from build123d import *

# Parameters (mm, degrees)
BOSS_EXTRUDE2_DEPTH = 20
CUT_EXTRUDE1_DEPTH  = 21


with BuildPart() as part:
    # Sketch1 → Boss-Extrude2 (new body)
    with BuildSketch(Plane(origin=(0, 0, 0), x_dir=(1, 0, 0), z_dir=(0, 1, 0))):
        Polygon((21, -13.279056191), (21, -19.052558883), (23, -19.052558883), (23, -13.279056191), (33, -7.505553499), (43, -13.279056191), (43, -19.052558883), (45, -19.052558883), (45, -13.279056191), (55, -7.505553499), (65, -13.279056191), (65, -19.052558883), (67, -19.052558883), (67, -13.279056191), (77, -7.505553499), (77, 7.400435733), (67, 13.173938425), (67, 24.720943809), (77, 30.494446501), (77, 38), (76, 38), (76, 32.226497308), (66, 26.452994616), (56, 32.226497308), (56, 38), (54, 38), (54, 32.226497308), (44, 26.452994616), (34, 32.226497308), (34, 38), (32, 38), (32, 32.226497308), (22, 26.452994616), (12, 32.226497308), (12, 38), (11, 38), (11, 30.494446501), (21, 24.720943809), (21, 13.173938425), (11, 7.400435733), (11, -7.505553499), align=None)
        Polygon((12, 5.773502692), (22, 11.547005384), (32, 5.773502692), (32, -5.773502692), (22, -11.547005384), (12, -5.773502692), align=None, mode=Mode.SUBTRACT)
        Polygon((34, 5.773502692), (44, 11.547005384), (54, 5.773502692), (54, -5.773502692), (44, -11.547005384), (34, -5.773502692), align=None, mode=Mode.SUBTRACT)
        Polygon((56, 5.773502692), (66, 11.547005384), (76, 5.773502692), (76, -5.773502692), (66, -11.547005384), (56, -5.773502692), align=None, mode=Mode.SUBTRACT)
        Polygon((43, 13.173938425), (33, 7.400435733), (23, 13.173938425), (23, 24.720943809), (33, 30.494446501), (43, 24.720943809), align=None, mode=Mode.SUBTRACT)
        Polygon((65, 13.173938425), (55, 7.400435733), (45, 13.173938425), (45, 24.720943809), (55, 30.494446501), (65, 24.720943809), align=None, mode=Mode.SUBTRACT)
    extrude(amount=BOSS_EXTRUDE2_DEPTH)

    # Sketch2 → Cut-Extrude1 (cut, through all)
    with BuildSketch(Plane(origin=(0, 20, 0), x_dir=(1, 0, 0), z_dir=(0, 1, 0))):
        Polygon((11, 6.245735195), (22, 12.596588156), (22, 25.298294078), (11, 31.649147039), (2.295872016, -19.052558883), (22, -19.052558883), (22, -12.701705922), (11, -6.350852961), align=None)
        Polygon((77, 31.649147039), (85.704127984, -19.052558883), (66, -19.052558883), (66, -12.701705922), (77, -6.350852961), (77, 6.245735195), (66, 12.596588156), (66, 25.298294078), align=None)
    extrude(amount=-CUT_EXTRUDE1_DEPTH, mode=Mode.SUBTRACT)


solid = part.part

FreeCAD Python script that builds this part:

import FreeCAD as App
import Part
import Sketcher
from FreeCAD import Vector
Q = App.Units.Quantity

doc = App.newDocument("Part")
body = doc.addObject("PartDesign::Body", "Body")

sketch1 = doc.addObject("Sketcher::SketchObject", "Sketch")
body.addObject(sketch1)
sketch1.AttachmentSupport = (doc.XZ_Plane, [""])
sketch1.MapMode = "FlatFace"
sketch1.addGeometry([
    Part.LineSegment(Vector(21, 13.279056, 0), Vector(21, 19.052559, 0)),
    Part.LineSegment(Vector(21, 19.052559, 0), Vector(23, 19.052559, 0)),
    Part.LineSegment(Vector(23, 19.052559, 0), Vector(23, 13.279056, 0)),
    Part.LineSegment(Vector(23, 13.279056, 0), Vector(33, 7.505553, 0)),
    Part.LineSegment(Vector(33, 7.505553, 0), Vector(43, 13.279056, 0)),
    Part.LineSegment(Vector(43, 13.279056, 0), Vector(43, 19.052559, 0)),
    Part.LineSegment(Vector(43, 19.052559, 0), Vector(45, 19.052559, 0)),
    Part.LineSegment(Vector(45, 19.052559, 0), Vector(45, 13.279056, 0)),
    Part.LineSegment(Vector(45, 13.279056, 0), Vector(55, 7.505553, 0)),
    Part.LineSegment(Vector(55, 7.505553, 0), Vector(65, 13.279056, 0)),
    Part.LineSegment(Vector(65, 13.279056, 0), Vector(65, 19.052559, 0)),
    Part.LineSegment(Vector(65, 19.052559, 0), Vector(67, 19.052559, 0)),
    Part.LineSegment(Vector(67, 19.052559, 0), Vector(67, 13.279056, 0)),
    Part.LineSegment(Vector(67, 13.279056, 0), Vector(77, 7.505553, 0)),
    Part.LineSegment(Vector(77, 7.505553, 0), Vector(77, -7.400436, 0)),
    Part.LineSegment(Vector(77, -7.400436, 0), Vector(67, -13.173938, 0)),
    Part.LineSegment(Vector(67, -13.173938, 0), Vector(67, -24.720944, 0)),
    Part.LineSegment(Vector(67, -24.720944, 0), Vector(77, -30.494447, 0)),
    Part.LineSegment(Vector(77, -30.494447, 0), Vector(77, -38, 0)),
    Part.LineSegment(Vector(77, -38, 0), Vector(76, -38, 0)),
    Part.LineSegment(Vector(76, -38, 0), Vector(76, -32.226497, 0)),
    Part.LineSegment(Vector(76, -32.226497, 0), Vector(66, -26.452995, 0)),
    Part.LineSegment(Vector(66, -26.452995, 0), Vector(56, -32.226497, 0)),
    Part.LineSegment(Vector(56, -32.226497, 0), Vector(56, -38, 0)),
    Part.LineSegment(Vector(56, -38, 0), Vector(54, -38, 0)),
    Part.LineSegment(Vector(54, -38, 0), Vector(54, -32.226497, 0)),
    Part.LineSegment(Vector(54, -32.226497, 0), Vector(44, -26.452995, 0)),
    Part.LineSegment(Vector(44, -26.452995, 0), Vector(34, -32.226497, 0)),
    Part.LineSegment(Vector(34, -32.226497, 0), Vector(34, -38, 0)),
    Part.LineSegment(Vector(34, -38, 0), Vector(32, -38, 0)),
    Part.LineSegment(Vector(32, -38, 0), Vector(32, -32.226497, 0)),
    Part.LineSegment(Vector(32, -32.226497, 0), Vector(22, -26.452995, 0)),
    Part.LineSegment(Vector(22, -26.452995, 0), Vector(12, -32.226497, 0)),
    Part.LineSegment(Vector(12, -32.226497, 0), Vector(12, -38, 0)),
    Part.LineSegment(Vector(12, -38, 0), Vector(11, -38, 0)),
    Part.LineSegment(Vector(11, -38, 0), Vector(11, -30.494447, 0)),
    Part.LineSegment(Vector(11, -30.494447, 0), Vector(21, -24.720944, 0)),
    Part.LineSegment(Vector(21, -24.720944, 0), Vector(21, -13.173938, 0)),
    Part.LineSegment(Vector(21, -13.173938, 0), Vector(11, -7.400436, 0)),
    Part.LineSegment(Vector(11, -7.400436, 0), Vector(11, 7.505553, 0)),
    Part.LineSegment(Vector(11, 7.505553, 0), Vector(21, 13.279056, 0)),
    Part.LineSegment(Vector(12, 5.773503, 0), Vector(12, -5.773503, 0)),
    Part.LineSegment(Vector(12, -5.773503, 0), Vector(22, -11.547005, 0)),
    Part.LineSegment(Vector(22, -11.547005, 0), Vector(32, -5.773503, 0)),
    Part.LineSegment(Vector(32, -5.773503, 0), Vector(32, 5.773503, 0)),
    Part.LineSegment(Vector(32, 5.773503, 0), Vector(22, 11.547005, 0)),
    Part.LineSegment(Vector(22, 11.547005, 0), Vector(12, 5.773503, 0)),
    Part.LineSegment(Vector(34, 5.773503, 0), Vector(34, -5.773503, 0)),
    Part.LineSegment(Vector(34, -5.773503, 0), Vector(44, -11.547005, 0)),
    Part.LineSegment(Vector(44, -11.547005, 0), Vector(54, -5.773503, 0)),
    Part.LineSegment(Vector(54, -5.773503, 0), Vector(54, 5.773503, 0)),
    Part.LineSegment(Vector(54, 5.773503, 0), Vector(44, 11.547005, 0)),
    Part.LineSegment(Vector(44, 11.547005, 0), Vector(34, 5.773503, 0)),
    Part.LineSegment(Vector(56, 5.773503, 0), Vector(56, -5.773503, 0)),
    Part.LineSegment(Vector(56, -5.773503, 0), Vector(66, -11.547005, 0)),
    Part.LineSegment(Vector(66, -11.547005, 0), Vector(76, -5.773503, 0)),
    Part.LineSegment(Vector(76, -5.773503, 0), Vector(76, 5.773503, 0)),
    Part.LineSegment(Vector(76, 5.773503, 0), Vector(66, 11.547005, 0)),
    Part.LineSegment(Vector(66, 11.547005, 0), Vector(56, 5.773503, 0)),
    Part.LineSegment(Vector(43, -24.720944, 0), Vector(43, -13.173938, 0)),
    Part.LineSegment(Vector(43, -13.173938, 0), Vector(33, -7.400436, 0)),
    Part.LineSegment(Vector(33, -7.400436, 0), Vector(23, -13.173938, 0)),
    Part.LineSegment(Vector(23, -13.173938, 0), Vector(23, -24.720944, 0)),
    Part.LineSegment(Vector(23, -24.720944, 0), Vector(33, -30.494447, 0)),
    Part.LineSegment(Vector(33, -30.494447, 0), Vector(43, -24.720944, 0)),
    Part.LineSegment(Vector(65, -24.720944, 0), Vector(65, -13.173938, 0)),
    Part.LineSegment(Vector(65, -13.173938, 0), Vector(55, -7.400436, 0)),
    Part.LineSegment(Vector(55, -7.400436, 0), Vector(45, -13.173938, 0)),
    Part.LineSegment(Vector(45, -13.173938, 0), Vector(45, -24.720944, 0)),
    Part.LineSegment(Vector(45, -24.720944, 0), Vector(55, -30.494447, 0)),
    Part.LineSegment(Vector(55, -30.494447, 0), Vector(65, -24.720944, 0)),
], False)
sketch1.addConstraint([
    Sketcher.Constraint("Coincident", 0, 2, 1, 1),
    Sketcher.Constraint("Coincident", 1, 2, 2, 1),
    Sketcher.Constraint("Coincident", 2, 2, 3, 1),
    Sketcher.Constraint("Coincident", 3, 2, 4, 1),
    Sketcher.Constraint("Coincident", 4, 2, 5, 1),
    Sketcher.Constraint("Coincident", 5, 2, 6, 1),
    Sketcher.Constraint("Coincident", 6, 2, 7, 1),
    Sketcher.Constraint("Coincident", 7, 2, 8, 1),
    Sketcher.Constraint("Coincident", 8, 2, 9, 1),
    Sketcher.Constraint("Coincident", 9, 2, 10, 1),
    Sketcher.Constraint("Coincident", 10, 2, 11, 1),
    Sketcher.Constraint("Coincident", 11, 2, 12, 1),
    Sketcher.Constraint("Coincident", 12, 2, 13, 1),
    Sketcher.Constraint("Coincident", 13, 2, 14, 1),
    Sketcher.Constraint("Coincident", 14, 2, 15, 1),
    Sketcher.Constraint("Coincident", 15, 2, 16, 1),
    Sketcher.Constraint("Coincident", 16, 2, 17, 1),
    Sketcher.Constraint("Coincident", 17, 2, 18, 1),
    Sketcher.Constraint("Coincident", 18, 2, 19, 1),
    Sketcher.Constraint("Coincident", 19, 2, 20, 1),
    Sketcher.Constraint("Coincident", 20, 2, 21, 1),
    Sketcher.Constraint("Coincident", 21, 2, 22, 1),
    Sketcher.Constraint("Coincident", 22, 2, 23, 1),
    Sketcher.Constraint("Coincident", 23, 2, 24, 1),
    Sketcher.Constraint("Coincident", 24, 2, 25, 1),
    Sketcher.Constraint("Coincident", 25, 2, 26, 1),
    Sketcher.Constraint("Coincident", 26, 2, 27, 1),
    Sketcher.Constraint("Coincident", 27, 2, 28, 1),
    Sketcher.Constraint("Coincident", 28, 2, 29, 1),
    Sketcher.Constraint("Coincident", 29, 2, 30, 1),
    Sketcher.Constraint("Coincident", 30, 2, 31, 1),
    Sketcher.Constraint("Coincident", 31, 2, 32, 1),
    Sketcher.Constraint("Coincident", 32, 2, 33, 1),
    Sketcher.Constraint("Coincident", 33, 2, 34, 1),
    Sketcher.Constraint("Coincident", 34, 2, 35, 1),
    Sketcher.Constraint("Coincident", 35, 2, 36, 1),
    Sketcher.Constraint("Coincident", 36, 2, 37, 1),
    Sketcher.Constraint("Coincident", 37, 2, 38, 1),
    Sketcher.Constraint("Coincident", 38, 2, 39, 1),
    Sketcher.Constraint("Coincident", 39, 2, 40, 1),
    Sketcher.Constraint("Coincident", 40, 2, 0, 1),
    Sketcher.Constraint("Coincident", 41, 2, 42, 1),
    Sketcher.Constraint("Coincident", 42, 2, 43, 1),
    Sketcher.Constraint("Coincident", 43, 2, 44, 1),
    Sketcher.Constraint("Coincident", 44, 2, 45, 1),
    Sketcher.Constraint("Coincident", 45, 2, 46, 1),
    Sketcher.Constraint("Coincident", 46, 2, 41, 1),
    Sketcher.Constraint("Coincident", 47, 2, 48, 1),
    Sketcher.Constraint("Coincident", 48, 2, 49, 1),
    Sketcher.Constraint("Coincident", 49, 2, 50, 1),
    Sketcher.Constraint("Coincident", 50, 2, 51, 1),
    Sketcher.Constraint("Coincident", 51, 2, 52, 1),
    Sketcher.Constraint("Coincident", 52, 2, 47, 1),
    Sketcher.Constraint("Coincident", 53, 2, 54, 1),
    Sketcher.Constraint("Coincident", 54, 2, 55, 1),
    Sketcher.Constraint("Coincident", 55, 2, 56, 1),
    Sketcher.Constraint("Coincident", 56, 2, 57, 1),
    Sketcher.Constraint("Coincident", 57, 2, 58, 1),
    Sketcher.Constraint("Coincident", 58, 2, 53, 1),
    Sketcher.Constraint("Coincident", 59, 2, 60, 1),
    Sketcher.Constraint("Coincident", 60, 2, 61, 1),
    Sketcher.Constraint("Coincident", 61, 2, 62, 1),
    Sketcher.Constraint("Coincident", 62, 2, 63, 1),
    Sketcher.Constraint("Coincident", 63, 2, 64, 1),
    Sketcher.Constraint("Coincident", 64, 2, 59, 1),
    Sketcher.Constraint("Coincident", 65, 2, 66, 1),
    Sketcher.Constraint("Coincident", 66, 2, 67, 1),
    Sketcher.Constraint("Coincident", 67, 2, 68, 1),
    Sketcher.Constraint("Coincident", 68, 2, 69, 1),
    Sketcher.Constraint("Coincident", 69, 2, 70, 1),
    Sketcher.Constraint("Coincident", 70, 2, 65, 1),
    Sketcher.Constraint("Vertical", 0),
    Sketcher.Constraint("Horizontal", 1),
    Sketcher.Constraint("Vertical", 2),
    Sketcher.Constraint("Vertical", 5),
    Sketcher.Constraint("Horizontal", 6),
    Sketcher.Constraint("Vertical", 7),
    Sketcher.Constraint("Vertical", 10),
    Sketcher.Constraint("Horizontal", 11),
    Sketcher.Constraint("Vertical", 12),
    Sketcher.Constraint("Vertical", 14),
    Sketcher.Constraint("Vertical", 16),
    Sketcher.Constraint("Vertical", 18),
    Sketcher.Constraint("Horizontal", 19),
    Sketcher.Constraint("Vertical", 20),
    Sketcher.Constraint("Vertical", 23),
    Sketcher.Constraint("Horizontal", 24),
    Sketcher.Constraint("Vertical", 25),
    Sketcher.Constraint("Vertical", 28),
    Sketcher.Constraint("Horizontal", 29),
    Sketcher.Constraint("Vertical", 30),
    Sketcher.Constraint("Vertical", 33),
    Sketcher.Constraint("Horizontal", 34),
    Sketcher.Constraint("Vertical", 35),
    Sketcher.Constraint("Vertical", 37),
    Sketcher.Constraint("Vertical", 39),
    Sketcher.Constraint("Vertical", 41),
    Sketcher.Constraint("Vertical", 44),
    Sketcher.Constraint("Vertical", 47),
    Sketcher.Constraint("Vertical", 50),
    Sketcher.Constraint("Vertical", 53),
    Sketcher.Constraint("Vertical", 56),
    Sketcher.Constraint("Vertical", 59),
    Sketcher.Constraint("Vertical", 62),
    Sketcher.Constraint("Vertical", 65),
    Sketcher.Constraint("Vertical", 68),
    Sketcher.Constraint("Symmetric", 42, 2, 45, 2, -1),
    Sketcher.Constraint("Symmetric", 48, 2, 51, 2, -1),
    Sketcher.Constraint("Symmetric", 54, 2, 57, 2, -1),
    Sketcher.Constraint("Parallel", 3, 8),
    Sketcher.Constraint("Parallel", 4, 9),
    Sketcher.Constraint("Parallel", 8, 13),
    Sketcher.Constraint("Parallel", 9, 15),
    Sketcher.Constraint("Parallel", 13, 17),
    Sketcher.Constraint("Parallel", 17, 21),
    Sketcher.Constraint("Parallel", 15, 22),
    Sketcher.Constraint("Parallel", 21, 26),
    Sketcher.Constraint("Parallel", 22, 27),
    Sketcher.Constraint("Parallel", 26, 31),
    Sketcher.Constraint("Parallel", 27, 32),
    Sketcher.Constraint("Parallel", 32, 36),
    Sketcher.Constraint("Parallel", 31, 38),
    Sketcher.Constraint("Parallel", 36, 40),
    Sketcher.Constraint("Parallel", 38, 42),
    Sketcher.Constraint("Parallel", 40, 43),
    Sketcher.Constraint("Parallel", 42, 45),
    Sketcher.Constraint("Parallel", 43, 46),
    Sketcher.Constraint("Parallel", 45, 48),
    Sketcher.Constraint("Parallel", 46, 49),
    Sketcher.Constraint("Parallel", 48, 51),
    Sketcher.Constraint("Parallel", 49, 52),
    Sketcher.Constraint("Parallel", 51, 54),
    Sketcher.Constraint("Parallel", 52, 55),
    Sketcher.Constraint("Parallel", 54, 57),
    Sketcher.Constraint("Parallel", 55, 58),
    Sketcher.Constraint("Parallel", 57, 60),
    Sketcher.Constraint("Parallel", 58, 61),
    Sketcher.Constraint("Parallel", 60, 63),
    Sketcher.Constraint("Parallel", 61, 64),
    Sketcher.Constraint("Parallel", 63, 66),
    Sketcher.Constraint("Parallel", 64, 67),
    Sketcher.Constraint("Parallel", 66, 69),
    Sketcher.Constraint("Parallel", 67, 70),
    Sketcher.Constraint("Horizontal", 2, 2, 4, 2),
    Sketcher.Constraint("Horizontal", 1, 2, 5, 2),
    Sketcher.Constraint("Horizontal", 4, 2, 7, 2),
    Sketcher.Constraint("Horizontal", 3, 2, 8, 2),
    Sketcher.Constraint("Horizontal", 7, 2, 9, 2),
    Sketcher.Constraint("Horizontal", 6, 2, 10, 2),
    Sketcher.Constraint("Horizontal", 9, 2, 12, 2),
    Sketcher.Constraint("Horizontal", 8, 2, 13, 2),
    Sketcher.Constraint("Horizontal", 20, 2, 22, 2),
    Sketcher.Constraint("Horizontal", 19, 2, 23, 2),
    Sketcher.Constraint("Horizontal", 22, 2, 25, 2),
    Sketcher.Constraint("Horizontal", 21, 2, 26, 2),
    Sketcher.Constraint("Horizontal", 25, 2, 27, 2),
    Sketcher.Constraint("Horizontal", 24, 2, 28, 2),
    Sketcher.Constraint("Horizontal", 27, 2, 30, 2),
    Sketcher.Constraint("Horizontal", 26, 2, 31, 2),
    Sketcher.Constraint("Horizontal", 30, 2, 32, 2),
    Sketcher.Constraint("Horizontal", 29, 2, 33, 2),
    Sketcher.Constraint("Horizontal", 17, 2, 35, 2),
    Sketcher.Constraint("Horizontal", 16, 2, 36, 2),
    Sketcher.Constraint("Horizontal", 15, 2, 37, 2),
    Sketcher.Constraint("Horizontal", 14, 2, 38, 2),
    Sketcher.Constraint("Horizontal", 13, 2, 39, 2),
    Sketcher.Constraint("Horizontal", 12, 2, 40, 2),
    Sketcher.Constraint("Horizontal", 41, 2, 43, 2),
    Sketcher.Constraint("Horizontal", 44, 2, 46, 2),
    Sketcher.Constraint("Horizontal", 43, 2, 47, 2),
    Sketcher.Constraint("Horizontal", 42, 2, 48, 2),
    Sketcher.Constraint("Horizontal", 47, 2, 49, 2),
    Sketcher.Constraint("Horizontal", 49, 2, 53, 2),
    Sketcher.Constraint("Horizontal", 48, 2, 54, 2),
    Sketcher.Constraint("Horizontal", 53, 2, 55, 2),
    Sketcher.Constraint("Horizontal", 37, 2, 59, 2),
    Sketcher.Constraint("Horizontal", 38, 2, 60, 2),
    Sketcher.Constraint("Horizontal", 59, 2, 61, 2),
    Sketcher.Constraint("Horizontal", 36, 2, 62, 2),
    Sketcher.Constraint("Horizontal", 35, 2, 63, 2),
    Sketcher.Constraint("Horizontal", 62, 2, 64, 2),
    Sketcher.Constraint("Horizontal", 61, 2, 65, 2),
    Sketcher.Constraint("Horizontal", 60, 2, 66, 2),
    Sketcher.Constraint("Horizontal", 65, 2, 67, 2),
    Sketcher.Constraint("Horizontal", 64, 2, 68, 2),
    Sketcher.Constraint("Horizontal", 63, 2, 69, 2),
    Sketcher.Constraint("Vertical", 12, 2, 15, 2),
    Sketcher.Constraint("Vertical", 33, 2, 41, 2),
    Sketcher.Constraint("Vertical", 31, 2, 42, 2),
    Sketcher.Constraint("Vertical", 28, 2, 47, 2),
    Sketcher.Constraint("Vertical", 23, 2, 53, 2),
    Sketcher.Constraint("Vertical", 5, 2, 59, 2),
    Sketcher.Constraint("Vertical", 10, 2, 65, 2),
    Sketcher.Constraint("Equal", 1, 6),
    Sketcher.Constraint("Equal", 6, 11),
    Sketcher.Constraint("Equal", 11, 24),
    Sketcher.Constraint("Equal", 24, 29),
    Sketcher.Constraint("Equal", 19, 34),
    Sketcher.Constraint("Equal", 12, 20),
    Sketcher.Constraint("Equal", 37, 41),
    Sketcher.Constraint("Equal", 17, 21),
    Sketcher.Constraint("DistanceX", 1, 1, 1, 2, 2.0),
    Sketcher.Constraint("Angle", 3, Q("-30 deg")),
    Sketcher.Constraint("DistanceX", -1, 1, 0, 2, 21.0),
    Sketcher.Constraint("DistanceX", -1, 1, 3, 2, 33.0),
    Sketcher.Constraint("DistanceY", 18, 2, -1, 1, 38.0),
    Sketcher.Constraint("DistanceY", 14, 2, 14, 1, 14.905989),
    Sketcher.Constraint("DistanceY", 0, 1, 0, 2, 5.773503),
    Sketcher.Constraint("DistanceY", 16, 2, 16, 1, 11.547005),
    Sketcher.Constraint("DistanceY", 18, 2, 18, 1, 7.505553),
])
pad1 = doc.addObject("PartDesign::Pad", "Pad")
body.addObject(pad1)
pad1.Profile = sketch1
pad1.Length = 20
pad1.Reversed = True

sketch2 = doc.addObject("Sketcher::SketchObject", "Sketch001")
body.addObject(sketch2)
sketch2.AttachmentSupport = (doc.XZ_Plane, [""])
sketch2.MapMode = "FlatFace"
sketch2.AttachmentOffset = App.Placement(Vector(0, 0, -20), App.Rotation())
sketch2.addGeometry([
    Part.LineSegment(Vector(11, -6.245735, 0), Vector(22, -12.596588, 0)),
    Part.LineSegment(Vector(22, -12.596588, 0), Vector(22, -25.298294, 0)),
    Part.LineSegment(Vector(22, -25.298294, 0), Vector(11, -31.649147, 0)),
    Part.LineSegment(Vector(11, -31.649147, 0), Vector(2.295872, 19.052559, 0)),
    Part.LineSegment(Vector(2.295872, 19.052559, 0), Vector(22, 19.052559, 0)),
    Part.LineSegment(Vector(22, 19.052559, 0), Vector(22, 12.701706, 0)),
    Part.LineSegment(Vector(22, 12.701706, 0), Vector(11, 6.350853, 0)),
    Part.LineSegment(Vector(11, 6.350853, 0), Vector(11, -6.245735, 0)),
    Part.LineSegment(Vector(85.704128, 19.052559, 0), Vector(77, -31.649147, 0)),
    Part.LineSegment(Vector(77, -31.649147, 0), Vector(66, -25.298294, 0)),
    Part.LineSegment(Vector(66, -25.298294, 0), Vector(66, -12.596588, 0)),
    Part.LineSegment(Vector(66, -12.596588, 0), Vector(77, -6.245735, 0)),
    Part.LineSegment(Vector(77, -6.245735, 0), Vector(77, 6.350853, 0)),
    Part.LineSegment(Vector(77, 6.350853, 0), Vector(66, 12.701706, 0)),
    Part.LineSegment(Vector(66, 12.701706, 0), Vector(66, 19.052559, 0)),
    Part.LineSegment(Vector(66, 19.052559, 0), Vector(85.704128, 19.052559, 0)),
], False)
sketch2.addConstraint([
    Sketcher.Constraint("Coincident", 0, 2, 1, 1),
    Sketcher.Constraint("Coincident", 1, 2, 2, 1),
    Sketcher.Constraint("Coincident", 2, 2, 3, 1),
    Sketcher.Constraint("Coincident", 3, 2, 4, 1),
    Sketcher.Constraint("Coincident", 4, 2, 5, 1),
    Sketcher.Constraint("Coincident", 5, 2, 6, 1),
    Sketcher.Constraint("Coincident", 6, 2, 7, 1),
    Sketcher.Constraint("Coincident", 7, 2, 0, 1),
    Sketcher.Constraint("Coincident", 8, 2, 9, 1),
    Sketcher.Constraint("Coincident", 9, 2, 10, 1),
    Sketcher.Constraint("Coincident", 10, 2, 11, 1),
    Sketcher.Constraint("Coincident", 11, 2, 12, 1),
    Sketcher.Constraint("Coincident", 12, 2, 13, 1),
    Sketcher.Constraint("Coincident", 13, 2, 14, 1),
    Sketcher.Constraint("Coincident", 14, 2, 15, 1),
    Sketcher.Constraint("Coincident", 15, 2, 8, 1),
    Sketcher.Constraint("Vertical", 1),
    Sketcher.Constraint("Horizontal", 4),
    Sketcher.Constraint("Vertical", 5),
    Sketcher.Constraint("Vertical", 7),
    Sketcher.Constraint("Vertical", 10),
    Sketcher.Constraint("Vertical", 12),
    Sketcher.Constraint("Vertical", 14),
    Sketcher.Constraint("Horizontal", 15),
    Sketcher.Constraint("Parallel", 2, 6),
    Sketcher.Constraint("Parallel", 0, 9),
    Sketcher.Constraint("Parallel", 6, 11),
    Sketcher.Constraint("Parallel", 9, 13),
    Sketcher.Constraint("Horizontal", 2, 2, 8, 2),
    Sketcher.Constraint("Horizontal", 1, 2, 9, 2),
    Sketcher.Constraint("Horizontal", 0, 2, 10, 2),
    Sketcher.Constraint("Horizontal", 7, 2, 11, 2),
    Sketcher.Constraint("Horizontal", 6, 2, 12, 2),
    Sketcher.Constraint("Horizontal", 5, 2, 13, 2),
    Sketcher.Constraint("Horizontal", 4, 2, 14, 2),
    Sketcher.Constraint("Vertical", 1, 2, 4, 2),
    Sketcher.Constraint("Vertical", 2, 2, 6, 2),
    Sketcher.Constraint("Vertical", 8, 2, 11, 2),
    Sketcher.Constraint("Equal", 4, 15),
    Sketcher.Constraint("Angle", 0, Q("-30 deg")),
    Sketcher.Constraint("DistanceX", -1, 1, 0, 2, 22.0),
    Sketcher.Constraint("DistanceX", -1, 1, 2, 2, 11.0),
    Sketcher.Constraint("DistanceX", -1, 1, 8, 2, 77.0),
    Sketcher.Constraint("DistanceY", 1, 2, 5, 2, 38.0),
    Sketcher.Constraint("DistanceY", 7, 2, 7, 1, 12.596588),
    Sketcher.Constraint("DistanceX", 4, 1, 4, 2, 19.704128),
    Sketcher.Constraint("DistanceY", 5, 2, 5, 1, 6.350853),
    Sketcher.Constraint("DistanceY", 0, 2, -1, 1, 12.596588),
])
pocket1 = doc.addObject("PartDesign::Pocket", "Pocket")
body.addObject(pocket1)
pocket1.Profile = sketch2
pocket1.Type = "ThroughAll"
pocket1.Reversed = True

doc.recompute()
